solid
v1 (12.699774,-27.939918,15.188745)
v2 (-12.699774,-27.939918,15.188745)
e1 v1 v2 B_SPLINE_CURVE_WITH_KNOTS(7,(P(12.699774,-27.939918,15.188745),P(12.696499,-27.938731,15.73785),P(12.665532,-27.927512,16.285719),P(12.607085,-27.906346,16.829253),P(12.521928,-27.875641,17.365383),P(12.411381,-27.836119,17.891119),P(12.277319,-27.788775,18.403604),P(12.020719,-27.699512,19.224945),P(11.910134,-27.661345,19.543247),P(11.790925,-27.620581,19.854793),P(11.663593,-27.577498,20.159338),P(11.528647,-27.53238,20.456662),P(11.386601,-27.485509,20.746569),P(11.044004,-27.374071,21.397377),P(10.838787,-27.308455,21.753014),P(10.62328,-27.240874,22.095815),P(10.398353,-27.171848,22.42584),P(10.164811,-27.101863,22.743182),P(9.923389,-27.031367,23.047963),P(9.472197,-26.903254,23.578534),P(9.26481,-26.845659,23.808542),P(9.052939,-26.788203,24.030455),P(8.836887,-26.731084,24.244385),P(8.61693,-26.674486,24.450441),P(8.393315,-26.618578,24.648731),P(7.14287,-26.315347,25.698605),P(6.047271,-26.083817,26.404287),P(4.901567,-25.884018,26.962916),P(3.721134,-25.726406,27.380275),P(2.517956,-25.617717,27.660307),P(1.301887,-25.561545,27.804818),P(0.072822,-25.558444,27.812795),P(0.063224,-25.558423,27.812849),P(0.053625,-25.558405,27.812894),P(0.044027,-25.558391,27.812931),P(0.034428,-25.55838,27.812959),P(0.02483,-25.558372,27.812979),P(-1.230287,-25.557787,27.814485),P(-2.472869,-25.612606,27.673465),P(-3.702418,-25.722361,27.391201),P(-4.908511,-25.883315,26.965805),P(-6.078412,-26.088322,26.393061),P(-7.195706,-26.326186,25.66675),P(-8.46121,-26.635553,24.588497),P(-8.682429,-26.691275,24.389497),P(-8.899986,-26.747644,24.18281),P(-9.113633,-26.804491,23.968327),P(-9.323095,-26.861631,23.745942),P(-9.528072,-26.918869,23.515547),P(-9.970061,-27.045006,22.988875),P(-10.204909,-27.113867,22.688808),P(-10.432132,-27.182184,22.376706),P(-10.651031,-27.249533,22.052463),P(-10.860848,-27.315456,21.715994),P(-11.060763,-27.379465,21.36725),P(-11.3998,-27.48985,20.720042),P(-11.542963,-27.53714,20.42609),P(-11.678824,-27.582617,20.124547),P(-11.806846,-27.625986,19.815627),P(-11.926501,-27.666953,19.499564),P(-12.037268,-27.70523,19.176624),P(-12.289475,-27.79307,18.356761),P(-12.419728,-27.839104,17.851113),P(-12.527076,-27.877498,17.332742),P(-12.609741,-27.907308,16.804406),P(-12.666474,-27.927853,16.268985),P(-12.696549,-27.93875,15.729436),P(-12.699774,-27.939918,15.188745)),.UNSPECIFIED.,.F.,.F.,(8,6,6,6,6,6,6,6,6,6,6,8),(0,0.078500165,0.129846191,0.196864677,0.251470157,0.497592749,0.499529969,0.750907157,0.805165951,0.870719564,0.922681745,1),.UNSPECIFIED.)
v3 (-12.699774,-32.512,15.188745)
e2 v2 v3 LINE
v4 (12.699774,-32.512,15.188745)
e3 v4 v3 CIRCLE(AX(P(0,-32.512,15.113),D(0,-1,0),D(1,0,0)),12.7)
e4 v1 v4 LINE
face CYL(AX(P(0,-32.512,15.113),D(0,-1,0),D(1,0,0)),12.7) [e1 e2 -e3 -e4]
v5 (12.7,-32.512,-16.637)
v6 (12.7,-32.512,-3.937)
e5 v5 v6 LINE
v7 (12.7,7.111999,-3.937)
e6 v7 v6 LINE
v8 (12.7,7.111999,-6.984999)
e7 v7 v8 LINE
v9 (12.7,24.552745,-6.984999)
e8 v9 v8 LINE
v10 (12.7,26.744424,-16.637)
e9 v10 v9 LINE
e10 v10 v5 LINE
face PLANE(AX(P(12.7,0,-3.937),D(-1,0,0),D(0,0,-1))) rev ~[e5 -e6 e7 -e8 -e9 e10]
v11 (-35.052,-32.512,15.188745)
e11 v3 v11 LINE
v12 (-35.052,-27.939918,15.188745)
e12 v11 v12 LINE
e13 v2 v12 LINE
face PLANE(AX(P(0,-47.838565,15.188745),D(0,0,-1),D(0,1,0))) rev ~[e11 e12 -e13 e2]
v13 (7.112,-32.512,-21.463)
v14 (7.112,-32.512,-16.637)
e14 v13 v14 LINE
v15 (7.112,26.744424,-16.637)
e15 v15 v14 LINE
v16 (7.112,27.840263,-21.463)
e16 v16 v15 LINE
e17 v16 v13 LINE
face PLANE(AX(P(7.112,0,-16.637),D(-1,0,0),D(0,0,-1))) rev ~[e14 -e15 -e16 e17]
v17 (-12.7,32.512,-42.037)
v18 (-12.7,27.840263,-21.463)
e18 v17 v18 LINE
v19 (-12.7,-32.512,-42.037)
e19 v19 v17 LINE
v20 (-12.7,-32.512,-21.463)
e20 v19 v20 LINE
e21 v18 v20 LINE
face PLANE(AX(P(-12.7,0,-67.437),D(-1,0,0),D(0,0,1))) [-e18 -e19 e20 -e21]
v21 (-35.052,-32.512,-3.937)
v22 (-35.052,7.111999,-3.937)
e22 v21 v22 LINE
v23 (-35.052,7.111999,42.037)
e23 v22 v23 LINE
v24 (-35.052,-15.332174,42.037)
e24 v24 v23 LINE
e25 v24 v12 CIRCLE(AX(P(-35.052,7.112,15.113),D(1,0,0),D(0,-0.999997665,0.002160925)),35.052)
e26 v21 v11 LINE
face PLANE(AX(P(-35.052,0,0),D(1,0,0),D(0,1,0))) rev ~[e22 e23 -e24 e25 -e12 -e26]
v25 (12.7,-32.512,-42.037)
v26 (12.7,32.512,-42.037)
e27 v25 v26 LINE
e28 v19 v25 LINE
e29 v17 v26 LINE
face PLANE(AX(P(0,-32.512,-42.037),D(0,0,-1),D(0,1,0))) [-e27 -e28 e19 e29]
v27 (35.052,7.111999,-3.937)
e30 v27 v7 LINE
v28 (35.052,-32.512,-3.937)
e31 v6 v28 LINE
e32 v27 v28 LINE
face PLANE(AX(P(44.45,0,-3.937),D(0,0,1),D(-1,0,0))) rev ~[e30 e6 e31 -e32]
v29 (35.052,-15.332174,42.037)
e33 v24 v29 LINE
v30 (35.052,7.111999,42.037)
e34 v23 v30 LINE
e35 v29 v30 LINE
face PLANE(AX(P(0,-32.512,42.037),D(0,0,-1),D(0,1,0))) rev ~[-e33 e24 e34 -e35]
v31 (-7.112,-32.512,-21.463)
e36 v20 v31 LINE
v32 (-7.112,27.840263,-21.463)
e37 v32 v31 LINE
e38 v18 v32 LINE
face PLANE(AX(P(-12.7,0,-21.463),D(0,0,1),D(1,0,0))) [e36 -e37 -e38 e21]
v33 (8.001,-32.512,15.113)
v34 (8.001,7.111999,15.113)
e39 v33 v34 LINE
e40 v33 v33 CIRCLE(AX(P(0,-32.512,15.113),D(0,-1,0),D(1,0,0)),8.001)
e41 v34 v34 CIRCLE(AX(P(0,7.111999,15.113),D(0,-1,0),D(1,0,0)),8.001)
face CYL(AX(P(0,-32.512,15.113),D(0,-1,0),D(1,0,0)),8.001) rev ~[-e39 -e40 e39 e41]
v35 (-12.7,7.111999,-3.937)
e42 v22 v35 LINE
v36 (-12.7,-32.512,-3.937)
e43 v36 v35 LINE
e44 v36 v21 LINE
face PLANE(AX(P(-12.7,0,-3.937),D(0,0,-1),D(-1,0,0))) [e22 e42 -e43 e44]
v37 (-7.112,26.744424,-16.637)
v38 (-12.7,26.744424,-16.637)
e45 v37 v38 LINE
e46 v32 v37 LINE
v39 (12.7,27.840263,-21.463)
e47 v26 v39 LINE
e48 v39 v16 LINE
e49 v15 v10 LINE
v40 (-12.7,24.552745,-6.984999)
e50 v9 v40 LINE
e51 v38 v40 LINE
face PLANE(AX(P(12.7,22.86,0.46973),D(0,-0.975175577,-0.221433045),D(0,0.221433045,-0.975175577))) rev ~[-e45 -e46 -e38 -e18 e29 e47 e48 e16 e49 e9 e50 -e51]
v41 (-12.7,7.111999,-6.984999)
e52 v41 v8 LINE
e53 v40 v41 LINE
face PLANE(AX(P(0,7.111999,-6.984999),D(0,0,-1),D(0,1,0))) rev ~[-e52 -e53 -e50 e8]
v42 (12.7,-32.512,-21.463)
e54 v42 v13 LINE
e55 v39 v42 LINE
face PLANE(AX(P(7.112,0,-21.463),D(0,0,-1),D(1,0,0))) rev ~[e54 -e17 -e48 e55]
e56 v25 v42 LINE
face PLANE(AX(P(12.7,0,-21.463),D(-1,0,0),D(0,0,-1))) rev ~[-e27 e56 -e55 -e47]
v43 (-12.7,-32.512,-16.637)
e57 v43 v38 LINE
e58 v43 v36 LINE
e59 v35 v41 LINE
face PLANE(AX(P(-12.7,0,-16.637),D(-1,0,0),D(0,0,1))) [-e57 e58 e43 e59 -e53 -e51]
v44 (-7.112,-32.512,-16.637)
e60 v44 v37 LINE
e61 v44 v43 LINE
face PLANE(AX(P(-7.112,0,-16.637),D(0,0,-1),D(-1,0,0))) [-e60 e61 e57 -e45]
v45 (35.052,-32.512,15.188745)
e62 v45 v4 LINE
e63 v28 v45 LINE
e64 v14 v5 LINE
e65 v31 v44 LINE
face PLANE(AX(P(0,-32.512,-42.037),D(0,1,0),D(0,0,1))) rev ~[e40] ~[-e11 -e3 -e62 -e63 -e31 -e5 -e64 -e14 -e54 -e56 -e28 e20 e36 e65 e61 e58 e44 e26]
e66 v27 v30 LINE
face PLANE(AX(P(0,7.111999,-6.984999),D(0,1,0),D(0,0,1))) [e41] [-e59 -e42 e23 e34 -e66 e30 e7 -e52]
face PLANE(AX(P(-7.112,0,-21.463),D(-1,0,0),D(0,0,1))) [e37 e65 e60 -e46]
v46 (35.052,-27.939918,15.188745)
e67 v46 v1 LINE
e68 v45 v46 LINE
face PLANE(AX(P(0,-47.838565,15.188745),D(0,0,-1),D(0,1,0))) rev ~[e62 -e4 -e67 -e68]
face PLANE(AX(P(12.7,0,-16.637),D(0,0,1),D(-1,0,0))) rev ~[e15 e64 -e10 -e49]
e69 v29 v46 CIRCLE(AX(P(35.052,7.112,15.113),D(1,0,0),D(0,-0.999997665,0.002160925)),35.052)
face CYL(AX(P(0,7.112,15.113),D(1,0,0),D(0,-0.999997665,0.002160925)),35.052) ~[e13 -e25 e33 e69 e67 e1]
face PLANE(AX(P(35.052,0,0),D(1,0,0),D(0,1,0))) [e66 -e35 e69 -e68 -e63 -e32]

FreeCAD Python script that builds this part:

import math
import FreeCAD as App
import Part
import Sketcher

V = App.Vector
Q = App.Units.Quantity

doc = App.newDocument("Part")
params = doc.addObject("Spreadsheet::Sheet", "Params")
for row, (alias, value) in enumerate([
    ("sketch1_width", "2.56 in"),
    ("sketch1_height", "3.31 in"),
    ("pad1_length", "2.76 in"),
    ("sketch2_height", "2.5 in"),
    ("sketch2_height2", "0.5 in"),
    ("sketch2_width", "1.25 in"),
    ("sketch2_width2", "0.22 in"),
    ("sketch2_height3", "1.81 in"),
    ("pocket1_length", "10 in"),
    ("pocket2_length", "10 in"),
    ("pocket3_length", "10 in"),
    ("sketch5_radius", "1.38 in"),
    ("pocket4_length", "10 in"),
    ("sketch6_diameter", "1 in"),
    ("pad2_length", "1 in"),
    ("sketch7_diameter", "0.63 in"),
], start=1):
    params.set(f"A{row}", alias)
    params.set(f"B{row}", "=" + value)
    params.setAlias(f"B{row}", alias)

body = doc.addObject("PartDesign::Body", "Body")

sketch1 = body.newObject("Sketcher::SketchObject", "Sketch")
sketch1.AttachmentSupport = (doc.getObject("YZ_Plane"), [""])
sketch1.MapMode = "FlatFace"
sketch1.addGeometry([
    Part.LineSegment(V(-33, 42, 0), V(-33, -42, 0)),
    Part.LineSegment(V(-33, -42, 0), V(33, -42, 0)),
    Part.LineSegment(V(33, -42, 0), V(33, 42, 0)),
    Part.LineSegment(V(33, 42, 0), V(-33, 42, 0)),
], False)
sketch1.addConstraint([
    Sketcher.Constraint("Coincident", 0, 2, 1, 1),
    Sketcher.Constraint("Coincident", 1, 2, 2, 1),
    Sketcher.Constraint("Coincident", 2, 2, 3, 1),
    Sketcher.Constraint("Coincident", 3, 2, 0, 1),
    Sketcher.Constraint("Vertical", 0),
    Sketcher.Constraint("Horizontal", 1),
    Sketcher.Constraint("Vertical", 2),
    Sketcher.Constraint("Horizontal", 3),
    Sketcher.Constraint("Symmetric", 0, 2, 2, 2, -1, 1),
    Sketcher.Constraint("DistanceX", 1, 1, 1, 2, Q("2.56 in")),
    Sketcher.Constraint("DistanceY", 0, 2, 0, 1, Q("3.31 in")),
])
sketch1.setExpression("Constraints[9]", "Params.sketch1_width")
sketch1.setExpression("Constraints[10]", "Params.sketch1_height")
pad1 = body.newObject("PartDesign::Pad", "Pad")
pad1.Profile = sketch1
pad1.setExpression("Length", "Params.pad1_length")
pad1.Midplane = True

sketch2 = body.newObject("Sketcher::SketchObject", "Sketch001")
sketch2.AttachmentSupport = (doc.getObject("XZ_Plane"), [""])
sketch2.MapMode = "FlatFace"
sketch2.addGeometry([
    Part.LineSegment(V(-12.7, -3.9, 0), V(-44.5, -3.9, 0)),
    Part.LineSegment(V(-44.5, -3.9, 0), V(-44.5, -67.4, 0)),
    Part.LineSegment(V(-44.5, -67.4, 0), V(-12.7, -67.4, 0)),
    Part.LineSegment(V(-12.7, -67.4, 0), V(-12.7, -21.5, 0)),
    Part.LineSegment(V(-12.7, -21.5, 0), V(-7.1, -21.5, 0)),
    Part.LineSegment(V(-7.1, -21.5, 0), V(-7.1, -16.6, 0)),
    Part.LineSegment(V(-7.1, -16.6, 0), V(-12.7, -16.6, 0)),
    Part.LineSegment(V(-12.7, -16.6, 0), V(-12.7, -3.9, 0)),
    Part.LineSegment(V(44.5, -3.9, 0), V(12.7, -3.9, 0)),
    Part.LineSegment(V(12.7, -3.9, 0), V(12.7, -16.6, 0)),
    Part.LineSegment(V(12.7, -16.6, 0), V(7.1, -16.6, 0)),
    Part.LineSegment(V(7.1, -16.6, 0), V(7.1, -21.5, 0)),
    Part.LineSegment(V(7.1, -21.5, 0), V(12.7, -21.5, 0)),
    Part.LineSegment(V(12.7, -21.5, 0), V(12.7, -67.4, 0)),
    Part.LineSegment(V(12.7, -67.4, 0), V(44.5, -67.4, 0)),
    Part.LineSegment(V(44.5, -67.4, 0), V(44.5, -3.9, 0)),
], False)
sketch2.addConstraint([
    Sketcher.Constraint("Coincident", 0, 2, 1, 1),
    Sketcher.Constraint("Coincident", 1, 2, 2, 1),
    Sketcher.Constraint("Coincident", 2, 2, 3, 1),
    Sketcher.Constraint("Coincident", 3, 2, 4, 1),
    Sketcher.Constraint("Coincident", 4, 2, 5, 1),
    Sketcher.Constraint("Coincident", 5, 2, 6, 1),
    Sketcher.Constraint("Coincident", 6, 2, 7, 1),
    Sketcher.Constraint("Coincident", 7, 2, 0, 1),
    Sketcher.Constraint("Coincident", 8, 2, 9, 1),
    Sketcher.Constraint("Coincident", 9, 2, 10, 1),
    Sketcher.Constraint("Coincident", 10, 2, 11, 1),
    Sketcher.Constraint("Coincident", 11, 2, 12, 1),
    Sketcher.Constraint("Coincident", 12, 2, 13, 1),
    Sketcher.Constraint("Coincident", 13, 2, 14, 1),
    Sketcher.Constraint("Coincident", 14, 2, 15, 1),
    Sketcher.Constraint("Coincident", 15, 2, 8, 1),
    Sketcher.Constraint("Horizontal", 0),
    Sketcher.Constraint("Vertical", 1),
    Sketcher.Constraint("Horizontal", 2),
    Sketcher.Constraint("Vertical", 3),
    Sketcher.Constraint("Horizontal", 4),
    Sketcher.Constraint("Vertical", 5),
    Sketcher.Constraint("Horizontal", 6),
    Sketcher.Constraint("Vertical", 7),
    Sketcher.Constraint("Horizontal", 8),
    Sketcher.Constraint("Vertical", 9),
    Sketcher.Constraint("Horizontal", 10),
    Sketcher.Constraint("Vertical", 11),
    Sketcher.Constraint("Horizontal", 12),
    Sketcher.Constraint("Vertical", 13),
    Sketcher.Constraint("Horizontal", 14),
    Sketcher.Constraint("Vertical", 15),
    Sketcher.Constraint("Symmetric", 7, 2, 8, 2, -2),
    Sketcher.Constraint("Symmetric", 5, 2, 10, 2, -2),
    Sketcher.Constraint("Symmetric", 3, 2, 12, 2, -2),
    Sketcher.Constraint("Symmetric", 1, 2, 14, 2, -2),
    Sketcher.Constraint("Vertical", 3, 2, 6, 2),
    Sketcher.Constraint("DistanceY", 1, 2, 1, 1, Q("2.5 in")),
    Sketcher.Constraint("DistanceY", 7, 1, 7, 2, Q("0.5 in")),
    Sketcher.Constraint("DistanceX", 7, 2, 8, 2, Q("1 in")),
    Sketcher.Constraint("DistanceX", 0, 2, 0, 1, Q("1.25 in")),
    Sketcher.Constraint("DistanceX", 4, 1, 4, 2, Q("0.22 in")),
    Sketcher.Constraint("DistanceY", 3, 1, 3, 2, Q("1.81 in")),
    Sketcher.Constraint("DistanceY", 0, 2, -1, 1, Q("0.155 in")),
])
sketch2.setExpression("Constraints[37]", "Params.sketch2_height")
sketch2.setExpression("Constraints[38]", "Params.sketch2_height2")
sketch2.setExpression("Constraints[40]", "Params.sketch2_width")
sketch2.setExpression("Constraints[41]", "Params.sketch2_width2")
sketch2.setExpression("Constraints[42]", "Params.sketch2_height3")
pocket1 = body.newObject("PartDesign::Pocket", "Pocket")
pocket1.Profile = sketch2
pocket1.setExpression("Length", "Params.pocket1_length")
pocket1.Midplane = True

sketch3 = body.newObject("Sketcher::SketchObject", "Sketch002")
sketch3.AttachmentSupport = (doc.getObject("YZ_Plane"), [""])
sketch3.MapMode = "FlatFace"
sketch3.addGeometry([
    Part.LineSegment(V(7, 53, 0), V(7, -7, 0)),
    Part.LineSegment(V(7, -7, 0), V(80, -7, 0)),
    Part.LineSegment(V(80, -7, 0), V(80, 53, 0)),
    Part.LineSegment(V(80, 53, 0), V(7, 53, 0)),
], False)
sketch3.addConstraint([
    Sketcher.Constraint("Coincident", 0, 2, 1, 1),
    Sketcher.Constraint("Coincident", 1, 2, 2, 1),
    Sketcher.Constraint("Coincident", 2, 2, 3, 1),
    Sketcher.Constraint("Coincident", 3, 2, 0, 1),
    Sketcher.Constraint("Vertical", 0),
    Sketcher.Constraint("Horizontal", 1),
    Sketcher.Constraint("Vertical", 2),
    Sketcher.Constraint("Horizontal", 3),
    Sketcher.Constraint("DistanceX", -1, 1, 0, 2, Q("0.28 in")),
    Sketcher.Constraint("DistanceY", 0, 2, -1, 1, Q("0.275 in")),
    Sketcher.Constraint("DistanceX", 1, 1, 1, 2, 72.461889),
    Sketcher.Constraint("DistanceY", 0, 2, 0, 1, 59.973377),
])
pocket2 = body.newObject("PartDesign::Pocket", "Pocket001")
pocket2.Profile = sketch3
pocket2.setExpression("Length", "Params.pocket2_length")
pocket2.Midplane = True

sketch4 = body.newObject("Sketcher::SketchObject", "Sketch003")
sketch4.AttachmentSupport = (doc.getObject("YZ_Plane"), [""])
sketch4.MapMode = "FlatFace"
sketch4.AttachmentOffset = App.Placement(V(0, 0, 0.5 * 25.4), App.Rotation())
sketch4.addGeometry([
    Part.LineSegment(V(23, 0, 0), V(33, -42, 0)),
    Part.LineSegment(V(33, -42, 0), V(52, -65, 0)),
    Part.LineSegment(V(52, -65, 0), V(56, 0, 0)),
    Part.LineSegment(V(56, 0, 0), V(23, 0, 0)),
], False)
sketch4.addConstraint([
    Sketcher.Constraint("Coincident", 0, 2, 1, 1),
    Sketcher.Constraint("Coincident", 1, 2, 2, 1),
    Sketcher.Constraint("Coincident", 2, 2, 3, 1),
    Sketcher.Constraint("Coincident", 3, 2, 0, 1),
    Sketcher.Constraint("Horizontal", 3),
    Sketcher.Constraint("DistanceX", -1, 1, 3, 2, Q("0.9 in")),
    Sketcher.Constraint("DistanceX", -1, 1, 0, 2, Q("1.28 in")),
    Sketcher.Constraint("DistanceY", 0, 2, -1, 1, Q("1.655 in")),
    Sketcher.Constraint("DistanceX", 3, 2, 3, 1, 32.997351),
    Sketcher.Constraint("Distance", 2, 65.893211),
    Sketcher.Constraint("DistanceY", 1, 2, -1, 1, 65.31479),
    Sketcher.Constraint("DistanceY", -1, 1, 2, 2, 0.46973),
])
pocket3 = body.newObject("PartDesign::Pocket", "Pocket002")
pocket3.Profile = sketch4
pocket3.setExpression("Length", "Params.pocket3_length")
pocket3.Midplane = True

sketch5 = body.newObject("Sketcher::SketchObject", "Sketch004")
sketch5.AttachmentSupport = (doc.getObject("YZ_Plane"), [""])
sketch5.MapMode = "FlatFace"
sketch5.addGeometry([
    Part.ArcOfCircle(Part.Circle(V(7, 15, 0), V(0, 0, 1), 35), math.radians(90), math.radians(180)),
    Part.LineSegment(V(7, 50, 0), V(-35, 66, 0)),
    Part.LineSegment(V(-35, 66, 0), V(-48, 20, 0)),
    Part.LineSegment(V(-48, 20, 0), V(-48, 15, 0)),
    Part.LineSegment(V(-48, 15, 0), V(-28, 15, 0)),
], False)
sketch5.addConstraint([
    Sketcher.Constraint("Coincident", 0, 1, 1, 1),
    Sketcher.Constraint("Coincident", 1, 2, 2, 1),
    Sketcher.Constraint("Coincident", 2, 2, 3, 1),
    Sketcher.Constraint("Coincident", 3, 2, 4, 1),
    Sketcher.Constraint("Coincident", 4, 2, 0, 2),
    Sketcher.Constraint("Vertical", 3),
    Sketcher.Constraint("Horizontal", 4),
    Sketcher.Constraint("Radius", 0, Q("1.38 in")),
    Sketcher.Constraint("DistanceX", -1, 1, 0, 3, Q("0.28 in")),
    Sketcher.Constraint("DistanceY", -1, 1, 0, 3, Q("0.595 in")),
    Sketcher.Constraint("DistanceX", 4, 1, 4, 2, 19.898647),
    Sketcher.Constraint("DistanceY", 3, 2, 3, 1, 5.023048),
    Sketcher.Constraint("DistanceX", -1, 1, 0, 1, 7.20457),
    Sketcher.Constraint("DistanceY", 2, 2, 1, 2, 45.925022),
    Sketcher.Constraint("Distance", 1, 45.052897),
    Sketcher.Constraint("Distance", 2, 47.706827),
])
sketch5.setExpression("Constraints[7]", "Params.sketch5_radius")
pocket4 = body.newObject("PartDesign::Pocket", "Pocket003")
pocket4.Profile = sketch5
pocket4.setExpression("Length", "Params.pocket4_length")
pocket4.Midplane = True

sketch6 = body.newObject("Sketcher::SketchObject", "Sketch005")
sketch6.AttachmentSupport = (doc.getObject("XZ_Plane"), [""])
sketch6.MapMode = "FlatFace"
sketch6.AttachmentOffset = App.Placement(V(0, 0, 1.28 * 25.4), App.Rotation())
sketch6.addGeometry(Part.Circle(V(0, 15, 0), V(0, 0, 1), 13), False)
sketch6.addConstraint([
    Sketcher.Constraint("PointOnObject", 0, 3, -2),
    Sketcher.Constraint("Diameter", 0, Q("1 in")),
    Sketcher.Constraint("DistanceY", -1, 1, 0, 3, Q("0.595 in")),
])
sketch6.setExpression("Constraints[1]", "Params.sketch6_diameter")
pad2 = body.newObject("PartDesign::Pad", "Pad001")
pad2.Profile = sketch6
pad2.setExpression("Length", "Params.pad2_length")
pad2.Reversed = True

sketch7 = body.newObject("Sketcher::SketchObject", "Sketch006")
sketch7.AttachmentSupport = (doc.getObject("XZ_Plane"), [""])
sketch7.MapMode = "FlatFace"
sketch7.AttachmentOffset = App.Placement(V(0, 0, 1.28 * 25.4), App.Rotation())
sketch7.addGeometry(Part.Circle(V(0, 15, 0), V(0, 0, 1), 8), False)
sketch7.addConstraint([
    Sketcher.Constraint("PointOnObject", 0, 3, -2),
    Sketcher.Constraint("Diameter", 0, Q("0.63 in")),
    Sketcher.Constraint("DistanceY", -1, 1, 0, 3, Q("0.595 in")),
])
sketch7.setExpression("Constraints[1]", "Params.sketch7_diameter")
pocket5 = body.newObject("PartDesign::Pocket", "Pocket004")
pocket5.Profile = sketch7
pocket5.Type = "ThroughAll"

doc.recompute()
